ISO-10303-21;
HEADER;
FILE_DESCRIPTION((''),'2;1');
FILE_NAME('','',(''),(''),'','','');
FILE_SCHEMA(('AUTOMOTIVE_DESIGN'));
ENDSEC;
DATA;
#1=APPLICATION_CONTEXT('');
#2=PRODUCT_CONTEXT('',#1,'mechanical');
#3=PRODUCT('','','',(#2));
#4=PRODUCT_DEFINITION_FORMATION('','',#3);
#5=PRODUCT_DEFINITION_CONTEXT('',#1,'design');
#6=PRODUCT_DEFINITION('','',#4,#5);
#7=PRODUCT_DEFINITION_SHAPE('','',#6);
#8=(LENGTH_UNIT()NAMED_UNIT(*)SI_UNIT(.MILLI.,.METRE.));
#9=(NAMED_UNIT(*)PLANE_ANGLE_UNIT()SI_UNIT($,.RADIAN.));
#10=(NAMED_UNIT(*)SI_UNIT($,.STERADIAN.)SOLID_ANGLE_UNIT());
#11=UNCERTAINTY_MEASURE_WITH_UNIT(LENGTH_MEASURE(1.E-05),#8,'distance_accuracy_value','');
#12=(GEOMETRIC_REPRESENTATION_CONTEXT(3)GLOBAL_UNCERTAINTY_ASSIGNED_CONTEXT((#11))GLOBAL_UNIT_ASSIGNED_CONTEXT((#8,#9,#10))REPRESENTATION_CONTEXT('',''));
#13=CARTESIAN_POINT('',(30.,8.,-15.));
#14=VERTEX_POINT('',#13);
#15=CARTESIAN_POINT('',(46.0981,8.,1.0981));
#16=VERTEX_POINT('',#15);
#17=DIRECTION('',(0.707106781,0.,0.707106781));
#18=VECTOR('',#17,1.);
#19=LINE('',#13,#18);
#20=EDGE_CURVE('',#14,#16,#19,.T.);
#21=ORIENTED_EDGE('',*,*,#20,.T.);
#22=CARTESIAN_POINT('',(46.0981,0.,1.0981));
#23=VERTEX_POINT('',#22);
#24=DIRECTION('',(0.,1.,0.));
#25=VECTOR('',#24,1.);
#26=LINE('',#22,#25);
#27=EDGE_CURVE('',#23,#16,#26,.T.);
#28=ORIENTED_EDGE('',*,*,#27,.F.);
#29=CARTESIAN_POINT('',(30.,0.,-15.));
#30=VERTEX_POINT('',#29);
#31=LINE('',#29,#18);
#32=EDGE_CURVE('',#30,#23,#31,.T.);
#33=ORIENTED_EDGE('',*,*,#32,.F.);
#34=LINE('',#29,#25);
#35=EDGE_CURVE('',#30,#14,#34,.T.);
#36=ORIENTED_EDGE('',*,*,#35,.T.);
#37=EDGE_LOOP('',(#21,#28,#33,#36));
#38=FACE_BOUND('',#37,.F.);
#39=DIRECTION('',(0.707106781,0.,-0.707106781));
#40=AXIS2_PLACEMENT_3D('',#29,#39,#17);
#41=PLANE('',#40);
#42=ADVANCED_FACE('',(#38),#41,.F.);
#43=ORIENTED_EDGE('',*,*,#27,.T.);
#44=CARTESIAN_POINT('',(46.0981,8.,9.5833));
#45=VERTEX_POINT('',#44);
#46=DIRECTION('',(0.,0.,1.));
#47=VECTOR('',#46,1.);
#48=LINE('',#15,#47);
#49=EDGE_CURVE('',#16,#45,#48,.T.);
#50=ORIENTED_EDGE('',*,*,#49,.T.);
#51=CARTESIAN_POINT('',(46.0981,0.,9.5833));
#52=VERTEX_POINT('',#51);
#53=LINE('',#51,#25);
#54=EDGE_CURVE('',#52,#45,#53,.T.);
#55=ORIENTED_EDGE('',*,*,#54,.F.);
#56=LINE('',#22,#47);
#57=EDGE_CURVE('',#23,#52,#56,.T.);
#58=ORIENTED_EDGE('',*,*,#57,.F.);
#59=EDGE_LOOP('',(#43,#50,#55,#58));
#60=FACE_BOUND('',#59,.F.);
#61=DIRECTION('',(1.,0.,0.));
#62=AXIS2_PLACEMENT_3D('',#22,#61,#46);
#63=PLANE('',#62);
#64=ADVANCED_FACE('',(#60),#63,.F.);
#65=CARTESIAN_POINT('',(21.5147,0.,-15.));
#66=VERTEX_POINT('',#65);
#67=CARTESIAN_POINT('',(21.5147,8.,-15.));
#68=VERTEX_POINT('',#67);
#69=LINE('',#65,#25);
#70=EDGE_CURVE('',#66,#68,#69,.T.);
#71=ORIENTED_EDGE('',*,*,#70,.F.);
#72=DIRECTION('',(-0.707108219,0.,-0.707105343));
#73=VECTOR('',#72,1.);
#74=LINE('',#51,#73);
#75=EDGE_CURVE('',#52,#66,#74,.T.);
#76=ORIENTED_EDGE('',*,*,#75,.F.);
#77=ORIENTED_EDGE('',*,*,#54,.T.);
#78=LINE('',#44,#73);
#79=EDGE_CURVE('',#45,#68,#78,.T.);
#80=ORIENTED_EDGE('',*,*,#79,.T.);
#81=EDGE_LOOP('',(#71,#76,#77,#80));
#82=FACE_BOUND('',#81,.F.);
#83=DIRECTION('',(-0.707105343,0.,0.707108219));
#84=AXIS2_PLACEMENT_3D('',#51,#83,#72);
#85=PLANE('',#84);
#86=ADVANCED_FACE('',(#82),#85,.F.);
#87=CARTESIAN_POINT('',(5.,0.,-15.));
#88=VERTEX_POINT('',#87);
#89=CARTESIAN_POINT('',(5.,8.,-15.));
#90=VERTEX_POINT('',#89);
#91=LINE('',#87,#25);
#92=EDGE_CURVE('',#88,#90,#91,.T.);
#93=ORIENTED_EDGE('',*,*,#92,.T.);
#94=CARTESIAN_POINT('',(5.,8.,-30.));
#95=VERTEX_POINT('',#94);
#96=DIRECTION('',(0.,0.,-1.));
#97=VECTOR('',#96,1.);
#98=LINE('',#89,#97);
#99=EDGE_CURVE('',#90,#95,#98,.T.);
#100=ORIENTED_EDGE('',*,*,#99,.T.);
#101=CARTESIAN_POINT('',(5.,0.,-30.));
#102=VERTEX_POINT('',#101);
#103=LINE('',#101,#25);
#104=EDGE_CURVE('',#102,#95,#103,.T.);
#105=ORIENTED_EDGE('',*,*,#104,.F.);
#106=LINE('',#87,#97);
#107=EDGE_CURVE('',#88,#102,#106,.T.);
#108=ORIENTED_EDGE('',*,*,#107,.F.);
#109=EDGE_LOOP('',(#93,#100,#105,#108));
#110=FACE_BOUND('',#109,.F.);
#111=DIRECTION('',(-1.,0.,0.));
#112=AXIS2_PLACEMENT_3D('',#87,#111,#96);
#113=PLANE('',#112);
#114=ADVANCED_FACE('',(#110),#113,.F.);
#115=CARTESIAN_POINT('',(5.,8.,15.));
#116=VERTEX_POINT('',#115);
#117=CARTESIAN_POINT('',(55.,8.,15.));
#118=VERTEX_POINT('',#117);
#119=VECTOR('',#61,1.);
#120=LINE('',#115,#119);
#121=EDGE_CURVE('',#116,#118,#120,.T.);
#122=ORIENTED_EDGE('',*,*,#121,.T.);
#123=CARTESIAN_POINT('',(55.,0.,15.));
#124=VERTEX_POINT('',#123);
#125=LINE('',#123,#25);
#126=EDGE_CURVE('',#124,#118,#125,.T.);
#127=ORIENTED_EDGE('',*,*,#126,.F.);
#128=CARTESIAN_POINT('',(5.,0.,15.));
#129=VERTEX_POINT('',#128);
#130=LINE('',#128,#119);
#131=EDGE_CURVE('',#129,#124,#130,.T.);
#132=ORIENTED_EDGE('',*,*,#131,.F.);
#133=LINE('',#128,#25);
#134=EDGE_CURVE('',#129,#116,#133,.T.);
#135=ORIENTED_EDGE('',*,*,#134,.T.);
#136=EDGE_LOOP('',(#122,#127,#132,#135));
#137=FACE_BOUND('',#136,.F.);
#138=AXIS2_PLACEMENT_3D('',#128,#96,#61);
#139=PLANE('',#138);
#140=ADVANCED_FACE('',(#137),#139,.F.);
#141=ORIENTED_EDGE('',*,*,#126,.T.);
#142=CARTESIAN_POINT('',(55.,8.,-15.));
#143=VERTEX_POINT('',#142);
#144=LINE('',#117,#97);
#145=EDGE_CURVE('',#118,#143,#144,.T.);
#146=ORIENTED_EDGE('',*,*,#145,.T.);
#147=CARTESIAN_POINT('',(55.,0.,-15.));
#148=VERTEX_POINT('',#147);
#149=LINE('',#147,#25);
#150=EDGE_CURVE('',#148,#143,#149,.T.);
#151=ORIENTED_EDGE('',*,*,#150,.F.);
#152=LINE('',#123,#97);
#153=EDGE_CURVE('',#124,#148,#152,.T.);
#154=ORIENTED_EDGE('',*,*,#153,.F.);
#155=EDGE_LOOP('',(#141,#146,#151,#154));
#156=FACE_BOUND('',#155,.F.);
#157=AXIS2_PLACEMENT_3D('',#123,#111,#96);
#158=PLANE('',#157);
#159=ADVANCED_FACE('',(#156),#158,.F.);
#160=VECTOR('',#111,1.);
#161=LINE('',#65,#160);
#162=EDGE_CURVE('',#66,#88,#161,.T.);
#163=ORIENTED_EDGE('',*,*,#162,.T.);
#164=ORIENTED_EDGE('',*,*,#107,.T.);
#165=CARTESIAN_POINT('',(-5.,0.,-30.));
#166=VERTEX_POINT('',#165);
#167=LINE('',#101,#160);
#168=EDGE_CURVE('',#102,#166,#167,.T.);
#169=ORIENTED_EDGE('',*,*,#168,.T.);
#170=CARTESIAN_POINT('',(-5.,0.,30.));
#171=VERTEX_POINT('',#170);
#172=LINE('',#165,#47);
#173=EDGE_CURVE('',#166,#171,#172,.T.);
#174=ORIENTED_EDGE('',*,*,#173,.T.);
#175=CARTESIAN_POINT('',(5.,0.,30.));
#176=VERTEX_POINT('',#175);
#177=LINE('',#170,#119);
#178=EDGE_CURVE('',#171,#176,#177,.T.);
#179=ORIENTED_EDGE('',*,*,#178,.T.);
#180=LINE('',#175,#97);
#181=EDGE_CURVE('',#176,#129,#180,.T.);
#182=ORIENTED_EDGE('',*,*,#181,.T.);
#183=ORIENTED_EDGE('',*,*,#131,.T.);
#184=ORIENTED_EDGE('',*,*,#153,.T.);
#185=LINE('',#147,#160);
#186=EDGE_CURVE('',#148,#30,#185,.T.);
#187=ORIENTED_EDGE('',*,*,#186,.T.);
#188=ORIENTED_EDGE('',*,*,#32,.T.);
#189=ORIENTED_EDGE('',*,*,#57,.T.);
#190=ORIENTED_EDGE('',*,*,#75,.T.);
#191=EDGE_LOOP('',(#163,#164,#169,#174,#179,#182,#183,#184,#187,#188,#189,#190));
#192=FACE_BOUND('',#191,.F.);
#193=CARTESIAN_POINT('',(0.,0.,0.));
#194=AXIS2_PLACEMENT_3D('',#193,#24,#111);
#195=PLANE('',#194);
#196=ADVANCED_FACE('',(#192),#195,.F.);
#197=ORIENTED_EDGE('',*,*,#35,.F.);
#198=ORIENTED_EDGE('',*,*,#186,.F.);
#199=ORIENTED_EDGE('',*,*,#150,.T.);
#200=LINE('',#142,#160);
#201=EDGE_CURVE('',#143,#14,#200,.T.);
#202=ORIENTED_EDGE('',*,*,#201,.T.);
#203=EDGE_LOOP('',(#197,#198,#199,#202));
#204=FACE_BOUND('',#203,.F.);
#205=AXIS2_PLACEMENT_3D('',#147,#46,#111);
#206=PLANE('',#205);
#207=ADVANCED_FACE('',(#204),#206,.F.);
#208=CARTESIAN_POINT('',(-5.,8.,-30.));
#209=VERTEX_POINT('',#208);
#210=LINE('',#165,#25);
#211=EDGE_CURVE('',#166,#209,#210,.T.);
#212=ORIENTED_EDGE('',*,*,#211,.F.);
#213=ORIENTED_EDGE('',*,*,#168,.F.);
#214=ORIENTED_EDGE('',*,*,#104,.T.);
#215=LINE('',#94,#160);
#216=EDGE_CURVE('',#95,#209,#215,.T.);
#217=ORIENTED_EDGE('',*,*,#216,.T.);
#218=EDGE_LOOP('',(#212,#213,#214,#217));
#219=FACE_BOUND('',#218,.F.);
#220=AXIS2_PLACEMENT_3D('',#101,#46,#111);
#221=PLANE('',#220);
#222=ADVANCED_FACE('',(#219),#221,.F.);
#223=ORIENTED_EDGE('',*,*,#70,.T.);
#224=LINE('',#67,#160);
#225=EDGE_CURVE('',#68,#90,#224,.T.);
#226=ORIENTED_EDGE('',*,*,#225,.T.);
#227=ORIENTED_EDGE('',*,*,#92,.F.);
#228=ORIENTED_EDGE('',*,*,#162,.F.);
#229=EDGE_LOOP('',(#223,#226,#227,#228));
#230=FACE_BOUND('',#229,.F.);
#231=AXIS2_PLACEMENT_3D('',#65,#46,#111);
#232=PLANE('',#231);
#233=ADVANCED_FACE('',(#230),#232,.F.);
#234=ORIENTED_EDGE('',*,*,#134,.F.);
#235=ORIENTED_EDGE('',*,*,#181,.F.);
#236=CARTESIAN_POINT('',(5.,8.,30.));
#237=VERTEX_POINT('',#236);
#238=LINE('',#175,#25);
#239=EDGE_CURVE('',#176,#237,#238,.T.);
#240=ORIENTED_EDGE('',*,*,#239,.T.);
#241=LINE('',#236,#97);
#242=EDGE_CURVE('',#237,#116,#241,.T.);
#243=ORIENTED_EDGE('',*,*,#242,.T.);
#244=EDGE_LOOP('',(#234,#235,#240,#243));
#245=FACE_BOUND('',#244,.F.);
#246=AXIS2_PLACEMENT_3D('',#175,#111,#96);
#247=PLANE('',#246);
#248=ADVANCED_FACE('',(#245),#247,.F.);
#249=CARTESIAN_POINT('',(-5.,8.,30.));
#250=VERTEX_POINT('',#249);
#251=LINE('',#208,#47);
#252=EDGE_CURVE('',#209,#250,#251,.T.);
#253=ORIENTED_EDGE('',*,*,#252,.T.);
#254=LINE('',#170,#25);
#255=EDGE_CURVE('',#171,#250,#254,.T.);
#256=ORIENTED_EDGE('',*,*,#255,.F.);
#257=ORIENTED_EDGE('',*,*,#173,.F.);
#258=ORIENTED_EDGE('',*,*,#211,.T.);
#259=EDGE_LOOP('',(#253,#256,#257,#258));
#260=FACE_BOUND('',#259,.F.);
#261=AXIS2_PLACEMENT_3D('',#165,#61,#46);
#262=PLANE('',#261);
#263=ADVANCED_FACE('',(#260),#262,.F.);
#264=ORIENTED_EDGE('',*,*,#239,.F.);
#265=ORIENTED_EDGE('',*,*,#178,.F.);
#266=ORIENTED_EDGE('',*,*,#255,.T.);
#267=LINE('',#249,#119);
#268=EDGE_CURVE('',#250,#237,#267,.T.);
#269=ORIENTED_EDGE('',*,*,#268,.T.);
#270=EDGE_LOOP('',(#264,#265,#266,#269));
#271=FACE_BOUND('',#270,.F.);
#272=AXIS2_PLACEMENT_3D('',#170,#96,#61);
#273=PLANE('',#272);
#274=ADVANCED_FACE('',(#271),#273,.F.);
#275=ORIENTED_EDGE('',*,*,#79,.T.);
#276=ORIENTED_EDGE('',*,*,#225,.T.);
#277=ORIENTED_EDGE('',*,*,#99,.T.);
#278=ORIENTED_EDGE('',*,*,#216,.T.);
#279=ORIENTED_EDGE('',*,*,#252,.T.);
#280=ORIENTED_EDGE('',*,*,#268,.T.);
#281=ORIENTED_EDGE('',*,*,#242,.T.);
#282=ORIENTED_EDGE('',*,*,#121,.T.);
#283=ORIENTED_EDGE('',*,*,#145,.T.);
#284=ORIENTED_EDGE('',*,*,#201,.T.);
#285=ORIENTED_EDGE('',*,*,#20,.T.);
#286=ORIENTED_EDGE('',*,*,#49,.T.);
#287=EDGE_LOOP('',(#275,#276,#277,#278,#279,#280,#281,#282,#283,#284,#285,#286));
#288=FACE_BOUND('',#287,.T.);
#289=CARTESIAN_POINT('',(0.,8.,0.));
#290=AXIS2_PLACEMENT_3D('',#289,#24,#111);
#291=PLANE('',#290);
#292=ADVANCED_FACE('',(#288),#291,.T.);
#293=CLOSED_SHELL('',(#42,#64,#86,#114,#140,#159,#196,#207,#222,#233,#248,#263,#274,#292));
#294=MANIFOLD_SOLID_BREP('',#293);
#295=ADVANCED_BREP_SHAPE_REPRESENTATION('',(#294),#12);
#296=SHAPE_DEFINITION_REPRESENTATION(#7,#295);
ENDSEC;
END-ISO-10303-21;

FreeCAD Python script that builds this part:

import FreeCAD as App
import Part
import Sketcher

V = App.Vector
Q = App.Units.Quantity

doc = App.newDocument("Part")
body = doc.addObject("PartDesign::Body", "Body")

# Sketch on XZ plane
sketch1 = body.newObject("Sketcher::SketchObject", "Sketch")
sketch1.AttachmentSupport = (doc.getObject("XZ_Plane"), [""])
sketch1.MapMode = "FlatFace"
sketch1.addGeometry([
    Part.LineSegment(V(-5, -30, 0), V(-5, 30, 0)),  # 0
    Part.LineSegment(V(-5, 30, 0), V(5, 30, 0)),  # 1
    Part.LineSegment(V(5, 30, 0), V(5, 15, 0)),  # 2
    Part.LineSegment(V(5, 15, 0), V(55, 15, 0)),  # 3
    Part.LineSegment(V(55, 15, 0), V(55, -15, 0)),  # 4
    Part.LineSegment(V(55, -15, 0), V(30, -15, 0)),  # 5
    Part.LineSegment(V(30, -15, 0), V(46.0981, 1.0981, 0)),  # 6
    Part.LineSegment(V(46.0981, 1.0981, 0), V(46.0981, 9.5833, 0)),  # 7
    Part.LineSegment(V(46.0981, 9.5833, 0), V(21.5147, -15, 0)),  # 8
    Part.LineSegment(V(21.5147, -15, 0), V(5, -15, 0)),  # 9
    Part.LineSegment(V(5, -15, 0), V(5, -30, 0)),  # 10
    Part.LineSegment(V(5, -30, 0), V(-5, -30, 0)),  # 11
], False)
sketch1.addConstraint([
    Sketcher.Constraint("Coincident", 0, 2, 1, 1),
    Sketcher.Constraint("Coincident", 1, 2, 2, 1),
    Sketcher.Constraint("Coincident", 2, 2, 3, 1),
    Sketcher.Constraint("Coincident", 3, 2, 4, 1),
    Sketcher.Constraint("Coincident", 4, 2, 5, 1),
    Sketcher.Constraint("Coincident", 5, 2, 6, 1),
    Sketcher.Constraint("Coincident", 6, 2, 7, 1),
    Sketcher.Constraint("Coincident", 7, 2, 8, 1),
    Sketcher.Constraint("Coincident", 8, 2, 9, 1),
    Sketcher.Constraint("Coincident", 9, 2, 10, 1),
    Sketcher.Constraint("Coincident", 10, 2, 11, 1),
    Sketcher.Constraint("Coincident", 11, 2, 0, 1),
    Sketcher.Constraint("Vertical", 0),
    Sketcher.Constraint("Horizontal", 1),
    Sketcher.Constraint("Vertical", 2),
    Sketcher.Constraint("Horizontal", 3),
    Sketcher.Constraint("Vertical", 4),
    Sketcher.Constraint("Horizontal", 5),
    Sketcher.Constraint("Vertical", 7),
    Sketcher.Constraint("Horizontal", 9),
    Sketcher.Constraint("Vertical", 10),
    Sketcher.Constraint("Horizontal", 11),
    Sketcher.Constraint("Symmetric", 0, 2, 10, 2, -1, 1),
    Sketcher.Constraint("Symmetric", 2, 2, 9, 2, -1),
    Sketcher.Constraint("Parallel", 6, 8),
    Sketcher.Constraint("Horizontal", 5, 2, 8, 2),
    Sketcher.Constraint("DistanceX", 1, 1, 1, 2, Q("10 mm")),
    Sketcher.Constraint("DistanceX", 3, 1, 3, 2, Q("50 mm")),
    Sketcher.Constraint("DistanceX", 5, 2, 5, 1, Q("25 mm")),
    Sketcher.Constraint("DistanceY", 0, 1, 0, 2, Q("60 mm")),
    Sketcher.Constraint("DistanceY", 2, 2, 2, 1, Q("15 mm")),
    Sketcher.Constraint("Angle", 6, Q("45 deg")),
    Sketcher.Constraint("Distance", 8, Q("34.766 mm")),
    Sketcher.Constraint("DistanceX", 9, 2, 9, 1, Q("16.5147 mm")),
])
pad1 = body.newObject("PartDesign::Pad", "Pad")
pad1.Profile = sketch1
pad1.Length = 8
pad1.Reversed = True

doc.recompute()
